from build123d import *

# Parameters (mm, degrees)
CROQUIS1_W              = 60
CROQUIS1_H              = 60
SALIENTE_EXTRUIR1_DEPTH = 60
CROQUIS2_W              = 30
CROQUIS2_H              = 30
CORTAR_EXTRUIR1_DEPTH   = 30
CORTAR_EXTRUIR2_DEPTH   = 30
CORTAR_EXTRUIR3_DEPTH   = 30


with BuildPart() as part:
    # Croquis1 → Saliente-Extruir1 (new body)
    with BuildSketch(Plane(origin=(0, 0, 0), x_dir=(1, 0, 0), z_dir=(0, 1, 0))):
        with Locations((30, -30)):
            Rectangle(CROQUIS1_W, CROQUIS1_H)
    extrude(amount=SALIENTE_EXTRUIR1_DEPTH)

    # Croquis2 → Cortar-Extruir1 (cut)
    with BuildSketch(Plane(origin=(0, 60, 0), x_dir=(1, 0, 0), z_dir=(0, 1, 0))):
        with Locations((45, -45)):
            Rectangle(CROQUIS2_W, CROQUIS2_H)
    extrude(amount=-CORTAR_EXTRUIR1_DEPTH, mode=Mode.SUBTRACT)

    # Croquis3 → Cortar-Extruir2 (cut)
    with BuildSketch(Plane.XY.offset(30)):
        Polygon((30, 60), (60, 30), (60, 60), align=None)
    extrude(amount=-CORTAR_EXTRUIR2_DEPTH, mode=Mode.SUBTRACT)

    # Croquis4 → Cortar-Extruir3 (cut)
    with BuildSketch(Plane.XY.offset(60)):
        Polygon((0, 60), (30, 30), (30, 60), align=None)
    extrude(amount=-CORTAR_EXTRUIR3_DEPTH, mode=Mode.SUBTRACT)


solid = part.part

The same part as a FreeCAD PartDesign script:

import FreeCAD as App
import Part
import Sketcher

doc = App.newDocument("Part")
body = doc.addObject("PartDesign::Body", "Body")

# Sketch on XZ plane
sketch1 = doc.addObject("Sketcher::SketchObject", "Sketch")
body.addObject(sketch1)
sketch1.AttachmentSupport = (doc.XZ_Plane, [""])
sketch1.MapMode = "FlatFace"
sketch1.addGeometry([
    Part.LineSegment(App.Vector(0, 0, 0), App.Vector(0, 60, 0)),
    Part.LineSegment(App.Vector(0, 60, 0), App.Vector(60, 60, 0)),
    Part.LineSegment(App.Vector(60, 60, 0), App.Vector(60, 0, 0)),
    Part.LineSegment(App.Vector(60, 0, 0), App.Vector(0, 0, 0)),
], False)
sketch1.addConstraint([
    Sketcher.Constraint("Coincident", 0, 2, 1, 1),
    Sketcher.Constraint("Coincident", 1, 2, 2, 1),
    Sketcher.Constraint("Coincident", 2, 2, 3, 1),
    Sketcher.Constraint("Coincident", 3, 2, 0, 1),
    Sketcher.Constraint("Vertical", 0),
    Sketcher.Constraint("Horizontal", 1),
    Sketcher.Constraint("Vertical", 2),
    Sketcher.Constraint("Horizontal", 3),
    Sketcher.Constraint("Coincident", 3, 2, -1, 1),
    Sketcher.Constraint("Equal", 3, 0),
    Sketcher.Constraint("DistanceX", 1, 1, 1, 2, 60.0),
])
pad1 = doc.addObject("PartDesign::Pad", "Pad")
body.addObject(pad1)
pad1.Profile = sketch1
pad1.Length = 60
pad1.Reversed = True

# Sketch on XZ plane
sketch2 = doc.addObject("Sketcher::SketchObject", "Sketch001")
body.addObject(sketch2)
sketch2.AttachmentSupport = (doc.XZ_Plane, [""])
sketch2.MapMode = "FlatFace"
sketch2.AttachmentOffset = App.Placement(App.Vector(0, 0, -60), App.Rotation())
sketch2.addGeometry([
    Part.LineSegment(App.Vector(30, 30, 0), App.Vector(30, 60, 0)),
    Part.LineSegment(App.Vector(30, 60, 0), App.Vector(60, 60, 0)),
    Part.LineSegment(App.Vector(60, 60, 0), App.Vector(60, 30, 0)),
    Part.LineSegment(App.Vector(60, 30, 0), App.Vector(30, 30, 0)),
], False)
sketch2.addConstraint([
    Sketcher.Constraint("Coincident", 0, 2, 1, 1),
    Sketcher.Constraint("Coincident", 1, 2, 2, 1),
    Sketcher.Constraint("Coincident", 2, 2, 3, 1),
    Sketcher.Constraint("Coincident", 3, 2, 0, 1),
    Sketcher.Constraint("Vertical", 0),
    Sketcher.Constraint("Horizontal", 1),
    Sketcher.Constraint("Vertical", 2),
    Sketcher.Constraint("Horizontal", 3),
    Sketcher.Constraint("Equal", 3, 0),
    Sketcher.Constraint("DistanceX", 1, 1, 1, 2, 30.0),
    Sketcher.Constraint("DistanceX", -1, 1, 0, 2, 30.0),
    Sketcher.Constraint("DistanceY", -1, 1, 0, 2, 60.0),
])
pocket1 = doc.addObject("PartDesign::Pocket", "Pocket")
body.addObject(pocket1)
pocket1.Profile = sketch2
pocket1.Length = 30
pocket1.Reversed = True

# Sketch on XY plane
sketch3 = doc.addObject("Sketcher::SketchObject", "Sketch002")
body.addObject(sketch3)
sketch3.AttachmentSupport = (doc.XY_Plane, [""])
sketch3.MapMode = "FlatFace"
sketch3.AttachmentOffset = App.Placement(App.Vector(0, 0, 30), App.Rotation())
sketch3.addGeometry([
    Part.LineSegment(App.Vector(30, 60, 0), App.Vector(60, 30, 0)),
    Part.LineSegment(App.Vector(60, 30, 0), App.Vector(60, 60, 0)),
    Part.LineSegment(App.Vector(60, 60, 0), App.Vector(30, 60, 0)),
], False)
sketch3.addConstraint([
    Sketcher.Constraint("Coincident", 0, 2, 1, 1),
    Sketcher.Constraint("Coincident", 1, 2, 2, 1),
    Sketcher.Constraint("Coincident", 2, 2, 0, 1),
    Sketcher.Constraint("Vertical", 1),
    Sketcher.Constraint("Horizontal", 2),
    Sketcher.Constraint("Equal", 2, 1),
    Sketcher.Constraint("DistanceX", 2, 2, 2, 1, 30.0),
    Sketcher.Constraint("DistanceX", -1, 1, 0, 2, 60.0),
    Sketcher.Constraint("DistanceY", -1, 1, 0, 2, 30.0),
])
pocket2 = doc.addObject("PartDesign::Pocket", "Pocket001")
body.addObject(pocket2)
pocket2.Profile = sketch3
pocket2.Length = 30

# Sketch on XY plane
sketch4 = doc.addObject("Sketcher::SketchObject", "Sketch003")
body.addObject(sketch4)
sketch4.AttachmentSupport = (doc.XY_Plane, [""])
sketch4.MapMode = "FlatFace"
sketch4.AttachmentOffset = App.Placement(App.Vector(0, 0, 60), App.Rotation())
sketch4.addGeometry([
    Part.LineSegment(App.Vector(0, 60, 0), App.Vector(30, 30, 0)),
    Part.LineSegment(App.Vector(30, 30, 0), App.Vector(30, 60, 0)),
    Part.LineSegment(App.Vector(30, 60, 0), App.Vector(0, 60, 0)),
], False)
sketch4.addConstraint([
    Sketcher.Constraint("Coincident", 0, 2, 1, 1),
    Sketcher.Constraint("Coincident", 1, 2, 2, 1),
    Sketcher.Constraint("Coincident", 2, 2, 0, 1),
    Sketcher.Constraint("Vertical", 1),
    Sketcher.Constraint("Horizontal", 2),
    Sketcher.Constraint("PointOnObject", 2, 2, -2),
    Sketcher.Constraint("Equal", 2, 1),
    Sketcher.Constraint("DistanceX", 2, 2, 2, 1, 30.0),
    Sketcher.Constraint("DistanceY", -1, 1, 0, 2, 30.0),
])
pocket3 = doc.addObject("PartDesign::Pocket", "Pocket002")
body.addObject(pocket3)
pocket3.Profile = sketch4
pocket3.Length = 30

doc.recompute()
